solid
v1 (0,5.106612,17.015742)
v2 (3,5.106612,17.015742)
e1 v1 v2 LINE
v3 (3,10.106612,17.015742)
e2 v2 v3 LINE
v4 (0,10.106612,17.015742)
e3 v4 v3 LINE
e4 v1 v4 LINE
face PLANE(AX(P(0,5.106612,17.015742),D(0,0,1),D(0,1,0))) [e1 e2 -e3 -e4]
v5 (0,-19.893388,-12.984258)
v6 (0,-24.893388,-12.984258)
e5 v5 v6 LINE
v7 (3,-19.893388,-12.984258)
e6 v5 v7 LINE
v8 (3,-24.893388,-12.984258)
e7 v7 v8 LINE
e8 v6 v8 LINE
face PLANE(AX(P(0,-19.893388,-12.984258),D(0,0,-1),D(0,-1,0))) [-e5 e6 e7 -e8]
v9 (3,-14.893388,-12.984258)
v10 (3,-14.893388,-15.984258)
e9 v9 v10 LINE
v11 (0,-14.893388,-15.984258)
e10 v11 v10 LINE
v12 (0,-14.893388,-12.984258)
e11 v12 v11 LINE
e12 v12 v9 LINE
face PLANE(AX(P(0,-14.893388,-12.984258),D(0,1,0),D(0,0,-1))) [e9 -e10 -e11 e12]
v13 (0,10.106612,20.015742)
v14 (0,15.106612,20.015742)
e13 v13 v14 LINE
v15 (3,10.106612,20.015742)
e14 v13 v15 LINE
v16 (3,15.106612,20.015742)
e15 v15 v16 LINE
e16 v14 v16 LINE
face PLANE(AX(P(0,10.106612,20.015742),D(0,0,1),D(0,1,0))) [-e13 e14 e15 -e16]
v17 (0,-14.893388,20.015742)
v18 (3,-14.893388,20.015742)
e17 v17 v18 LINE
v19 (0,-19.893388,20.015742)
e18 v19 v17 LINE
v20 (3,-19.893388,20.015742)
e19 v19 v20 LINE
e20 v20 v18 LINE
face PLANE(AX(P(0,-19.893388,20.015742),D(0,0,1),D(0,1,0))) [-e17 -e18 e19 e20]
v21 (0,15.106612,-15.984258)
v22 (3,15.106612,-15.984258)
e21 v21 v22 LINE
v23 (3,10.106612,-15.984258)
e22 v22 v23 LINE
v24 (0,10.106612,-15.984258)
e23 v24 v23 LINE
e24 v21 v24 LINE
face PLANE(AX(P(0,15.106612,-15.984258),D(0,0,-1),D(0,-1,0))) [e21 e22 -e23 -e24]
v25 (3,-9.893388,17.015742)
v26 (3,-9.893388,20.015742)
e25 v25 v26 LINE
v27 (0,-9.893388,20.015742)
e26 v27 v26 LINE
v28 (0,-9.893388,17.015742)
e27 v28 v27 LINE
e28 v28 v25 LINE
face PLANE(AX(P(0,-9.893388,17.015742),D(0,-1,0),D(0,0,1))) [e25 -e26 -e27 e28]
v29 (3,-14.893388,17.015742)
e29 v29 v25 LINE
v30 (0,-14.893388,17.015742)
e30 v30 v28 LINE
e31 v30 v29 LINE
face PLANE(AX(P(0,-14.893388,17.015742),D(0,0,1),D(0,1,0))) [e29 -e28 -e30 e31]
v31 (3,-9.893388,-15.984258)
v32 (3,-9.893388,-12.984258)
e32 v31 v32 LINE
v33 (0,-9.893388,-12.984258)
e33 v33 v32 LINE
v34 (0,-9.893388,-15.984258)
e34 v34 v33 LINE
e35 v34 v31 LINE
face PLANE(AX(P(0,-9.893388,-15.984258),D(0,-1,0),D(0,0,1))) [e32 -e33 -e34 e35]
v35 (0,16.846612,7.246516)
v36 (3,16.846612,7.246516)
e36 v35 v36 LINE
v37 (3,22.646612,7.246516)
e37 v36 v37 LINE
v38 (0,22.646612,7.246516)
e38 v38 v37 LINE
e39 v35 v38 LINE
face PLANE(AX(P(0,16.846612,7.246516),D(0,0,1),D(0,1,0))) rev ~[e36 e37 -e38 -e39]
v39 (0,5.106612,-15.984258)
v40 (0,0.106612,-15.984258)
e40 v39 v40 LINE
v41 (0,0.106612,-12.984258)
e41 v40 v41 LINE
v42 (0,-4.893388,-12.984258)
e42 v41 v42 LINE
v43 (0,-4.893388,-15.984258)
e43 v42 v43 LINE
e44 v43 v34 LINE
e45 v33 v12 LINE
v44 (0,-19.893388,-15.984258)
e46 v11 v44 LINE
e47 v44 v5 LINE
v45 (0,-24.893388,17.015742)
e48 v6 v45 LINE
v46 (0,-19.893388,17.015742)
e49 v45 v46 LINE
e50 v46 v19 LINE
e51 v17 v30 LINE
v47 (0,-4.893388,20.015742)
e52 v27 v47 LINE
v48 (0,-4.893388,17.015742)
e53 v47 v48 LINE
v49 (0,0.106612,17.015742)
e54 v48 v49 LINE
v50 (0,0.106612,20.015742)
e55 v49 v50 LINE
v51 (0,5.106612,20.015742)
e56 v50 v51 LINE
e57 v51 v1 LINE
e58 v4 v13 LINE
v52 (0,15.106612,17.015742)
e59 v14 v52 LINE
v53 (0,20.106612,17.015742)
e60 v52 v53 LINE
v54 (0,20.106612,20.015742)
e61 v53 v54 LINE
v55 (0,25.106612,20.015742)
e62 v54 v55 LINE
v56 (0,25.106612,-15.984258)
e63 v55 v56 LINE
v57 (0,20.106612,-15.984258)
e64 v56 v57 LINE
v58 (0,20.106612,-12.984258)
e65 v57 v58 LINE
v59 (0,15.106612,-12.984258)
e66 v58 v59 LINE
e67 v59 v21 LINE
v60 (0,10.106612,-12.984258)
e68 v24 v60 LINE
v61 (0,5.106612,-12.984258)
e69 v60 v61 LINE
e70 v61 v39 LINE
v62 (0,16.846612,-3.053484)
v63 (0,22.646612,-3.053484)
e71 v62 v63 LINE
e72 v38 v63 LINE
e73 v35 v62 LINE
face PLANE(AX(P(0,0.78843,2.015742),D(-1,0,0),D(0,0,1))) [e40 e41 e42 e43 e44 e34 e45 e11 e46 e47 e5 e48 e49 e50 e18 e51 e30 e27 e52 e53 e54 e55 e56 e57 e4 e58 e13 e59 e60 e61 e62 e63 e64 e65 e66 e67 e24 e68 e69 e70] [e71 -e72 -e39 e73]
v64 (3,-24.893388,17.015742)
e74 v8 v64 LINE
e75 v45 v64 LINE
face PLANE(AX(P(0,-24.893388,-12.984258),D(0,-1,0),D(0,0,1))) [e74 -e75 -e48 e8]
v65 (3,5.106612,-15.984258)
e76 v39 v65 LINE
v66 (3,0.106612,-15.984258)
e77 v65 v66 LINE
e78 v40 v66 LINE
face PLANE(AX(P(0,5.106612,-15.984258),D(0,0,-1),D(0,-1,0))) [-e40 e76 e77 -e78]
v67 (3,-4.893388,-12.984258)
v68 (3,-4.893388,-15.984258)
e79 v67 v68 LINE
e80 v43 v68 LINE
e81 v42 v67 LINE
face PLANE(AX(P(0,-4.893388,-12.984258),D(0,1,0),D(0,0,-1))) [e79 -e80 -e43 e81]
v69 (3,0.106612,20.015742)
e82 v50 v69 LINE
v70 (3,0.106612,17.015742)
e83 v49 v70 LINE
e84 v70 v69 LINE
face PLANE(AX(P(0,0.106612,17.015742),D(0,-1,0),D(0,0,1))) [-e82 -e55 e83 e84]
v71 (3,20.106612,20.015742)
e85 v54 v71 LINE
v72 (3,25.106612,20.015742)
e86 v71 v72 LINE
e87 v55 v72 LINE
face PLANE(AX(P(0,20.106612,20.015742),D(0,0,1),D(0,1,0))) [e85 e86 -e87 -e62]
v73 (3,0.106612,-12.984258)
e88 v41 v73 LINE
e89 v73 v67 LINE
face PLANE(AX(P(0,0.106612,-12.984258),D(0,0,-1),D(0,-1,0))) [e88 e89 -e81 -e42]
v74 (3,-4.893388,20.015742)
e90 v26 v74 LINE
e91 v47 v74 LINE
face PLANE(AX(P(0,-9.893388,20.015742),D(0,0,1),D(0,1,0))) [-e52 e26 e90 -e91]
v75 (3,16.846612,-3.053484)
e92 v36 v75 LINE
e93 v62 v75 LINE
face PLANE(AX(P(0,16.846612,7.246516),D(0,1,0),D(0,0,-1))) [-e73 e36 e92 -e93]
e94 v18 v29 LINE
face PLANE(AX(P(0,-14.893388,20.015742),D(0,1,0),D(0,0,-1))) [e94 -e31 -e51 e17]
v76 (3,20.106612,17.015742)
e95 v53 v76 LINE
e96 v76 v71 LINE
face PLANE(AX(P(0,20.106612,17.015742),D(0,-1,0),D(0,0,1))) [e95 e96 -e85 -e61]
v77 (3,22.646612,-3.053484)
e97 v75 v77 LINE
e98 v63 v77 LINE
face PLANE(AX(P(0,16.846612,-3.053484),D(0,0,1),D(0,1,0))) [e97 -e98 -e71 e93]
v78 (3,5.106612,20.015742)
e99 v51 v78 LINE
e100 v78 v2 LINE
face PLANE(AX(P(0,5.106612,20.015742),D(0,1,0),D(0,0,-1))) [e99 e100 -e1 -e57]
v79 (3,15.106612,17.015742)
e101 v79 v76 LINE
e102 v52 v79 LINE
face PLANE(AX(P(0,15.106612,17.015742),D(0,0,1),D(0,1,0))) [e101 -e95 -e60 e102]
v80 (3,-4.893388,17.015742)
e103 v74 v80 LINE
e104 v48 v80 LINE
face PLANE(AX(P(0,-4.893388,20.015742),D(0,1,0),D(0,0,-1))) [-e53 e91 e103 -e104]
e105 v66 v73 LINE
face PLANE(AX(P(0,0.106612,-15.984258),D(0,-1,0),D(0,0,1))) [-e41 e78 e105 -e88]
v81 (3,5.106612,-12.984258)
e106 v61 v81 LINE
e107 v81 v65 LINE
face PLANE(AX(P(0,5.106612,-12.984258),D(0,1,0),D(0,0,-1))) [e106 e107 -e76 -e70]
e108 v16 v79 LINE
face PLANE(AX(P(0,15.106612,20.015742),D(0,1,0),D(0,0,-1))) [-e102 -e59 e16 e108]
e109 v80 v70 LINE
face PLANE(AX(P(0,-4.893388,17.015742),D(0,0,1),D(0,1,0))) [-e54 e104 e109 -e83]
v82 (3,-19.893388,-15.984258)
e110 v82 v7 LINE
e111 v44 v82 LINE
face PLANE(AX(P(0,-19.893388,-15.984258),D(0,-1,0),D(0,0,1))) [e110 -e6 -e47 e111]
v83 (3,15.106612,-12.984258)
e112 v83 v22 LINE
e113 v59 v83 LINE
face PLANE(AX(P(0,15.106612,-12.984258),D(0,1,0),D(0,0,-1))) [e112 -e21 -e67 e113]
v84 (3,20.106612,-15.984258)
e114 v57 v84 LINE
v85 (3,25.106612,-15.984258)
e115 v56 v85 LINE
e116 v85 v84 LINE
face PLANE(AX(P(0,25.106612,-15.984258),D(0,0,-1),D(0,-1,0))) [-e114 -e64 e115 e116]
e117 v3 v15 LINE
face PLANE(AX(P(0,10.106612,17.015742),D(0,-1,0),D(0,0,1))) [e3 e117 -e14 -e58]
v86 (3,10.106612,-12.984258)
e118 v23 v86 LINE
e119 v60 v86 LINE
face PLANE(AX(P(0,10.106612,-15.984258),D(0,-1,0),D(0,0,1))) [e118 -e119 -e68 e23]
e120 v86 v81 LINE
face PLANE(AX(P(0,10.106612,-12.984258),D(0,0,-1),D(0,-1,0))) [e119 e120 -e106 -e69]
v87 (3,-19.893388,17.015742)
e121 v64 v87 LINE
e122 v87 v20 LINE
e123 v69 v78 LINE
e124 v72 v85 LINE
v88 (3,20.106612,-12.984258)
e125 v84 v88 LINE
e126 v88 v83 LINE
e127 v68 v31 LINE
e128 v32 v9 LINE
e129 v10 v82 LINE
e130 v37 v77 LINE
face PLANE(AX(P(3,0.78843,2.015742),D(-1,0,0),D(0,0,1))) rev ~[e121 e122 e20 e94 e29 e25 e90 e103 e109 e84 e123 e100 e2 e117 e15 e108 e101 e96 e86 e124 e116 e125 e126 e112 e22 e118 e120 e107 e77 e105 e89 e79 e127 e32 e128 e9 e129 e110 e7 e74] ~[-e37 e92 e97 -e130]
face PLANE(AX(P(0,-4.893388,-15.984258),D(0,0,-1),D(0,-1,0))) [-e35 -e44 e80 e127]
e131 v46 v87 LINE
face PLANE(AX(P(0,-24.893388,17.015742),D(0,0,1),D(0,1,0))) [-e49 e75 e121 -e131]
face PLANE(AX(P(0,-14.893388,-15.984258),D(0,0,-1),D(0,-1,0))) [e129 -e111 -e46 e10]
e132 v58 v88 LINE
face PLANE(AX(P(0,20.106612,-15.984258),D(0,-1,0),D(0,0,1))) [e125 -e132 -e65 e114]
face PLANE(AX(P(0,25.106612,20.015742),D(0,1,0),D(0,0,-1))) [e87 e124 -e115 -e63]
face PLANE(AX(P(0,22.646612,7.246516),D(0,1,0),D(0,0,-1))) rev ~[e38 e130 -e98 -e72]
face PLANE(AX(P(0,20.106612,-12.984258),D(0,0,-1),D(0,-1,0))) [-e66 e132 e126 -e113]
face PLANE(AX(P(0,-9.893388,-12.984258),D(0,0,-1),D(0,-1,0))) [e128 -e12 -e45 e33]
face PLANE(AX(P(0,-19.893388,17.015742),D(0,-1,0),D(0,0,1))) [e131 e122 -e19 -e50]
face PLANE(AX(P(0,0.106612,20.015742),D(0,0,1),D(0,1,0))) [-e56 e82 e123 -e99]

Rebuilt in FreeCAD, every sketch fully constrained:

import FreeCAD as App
import Part
import Sketcher
from FreeCAD import Vector


def add_polygon(sketch, points):
    """Adds a closed chain of lines whose ends are joined by coincident constraints."""
    first, n = sketch.GeometryCount, len(points)
    for a, b in zip(points, points[1:] + points[:1]):
        sketch.addGeometry(Part.LineSegment(App.Vector(*a, 0), App.Vector(*b, 0)), False)
    for i in range(n):
        sketch.addConstraint(Sketcher.Constraint("Coincident", first + i, 2, first + (i + 1) % n, 1))

doc = App.newDocument("Part")
body = doc.addObject("PartDesign::Body", "Body")

# Sketch on YZ plane
sketch1 = body.newObject("Sketcher::SketchObject", "Sketch")
sketch1.AttachmentSupport = (doc.getObject("YZ_Plane"), [""])
sketch1.MapMode = "FlatFace"
add_polygon(sketch1, [(20.106612, -15.984258), (25.106612, -15.984258), (25.106612, 20.015742), (20.106612, 20.015742), (20.106612, 17.015742), (15.106612, 17.015742), (15.106612, 20.015742), (10.106612, 20.015742), (10.106612, 17.015742), (5.106612, 17.015742), (5.106612, 20.015742), (0.106612, 20.015742), (0.106612, 17.015742), (-4.893388, 17.015742), (-4.893388, 20.015742), (-9.893388, 20.015742), (-9.893388, 17.015742), (-14.893388, 17.015742), (-14.893388, 20.015742), (-19.893388, 20.015742), (-19.893388, 17.015742), (-24.893388, 17.015742), (-24.893388, -12.984258), (-19.893388, -12.984258), (-19.893388, -15.984258), (-14.893388, -15.984258), (-14.893388, -12.984258), (-9.893388, -12.984258), (-9.893388, -15.984258), (-4.893388, -15.984258), (-4.893388, -12.984258), (0.106612, -12.984258), (0.106612, -15.984258), (5.106612, -15.984258), (5.106612, -12.984258), (10.106612, -12.984258), (10.106612, -15.984258), (15.106612, -15.984258), (15.106612, -12.984258), (20.106612, -12.984258)])  # lines 0-39
add_polygon(sketch1, [(16.846612, 7.246516), (22.646612, 7.246516), (22.646612, -3.053484), (16.846612, -3.053484)])  # lines 40-43
sketch1.addConstraint([
    Sketcher.Constraint("Horizontal", 0),
    Sketcher.Constraint("Vertical", 1),
    Sketcher.Constraint("Horizontal", 2),
    Sketcher.Constraint("Vertical", 3),
    Sketcher.Constraint("Horizontal", 4),
    Sketcher.Constraint("Vertical", 5),
    Sketcher.Constraint("Horizontal", 6),
    Sketcher.Constraint("Vertical", 7),
    Sketcher.Constraint("Horizontal", 8),
    Sketcher.Constraint("Vertical", 9),
    Sketcher.Constraint("Horizontal", 10),
    Sketcher.Constraint("Vertical", 11),
    Sketcher.Constraint("Horizontal", 12),
    Sketcher.Constraint("Vertical", 13),
    Sketcher.Constraint("Horizontal", 14),
    Sketcher.Constraint("Vertical", 15),
    Sketcher.Constraint("Horizontal", 16),
    Sketcher.Constraint("Vertical", 17),
    Sketcher.Constraint("Horizontal", 18),
    Sketcher.Constraint("Vertical", 19),
    Sketcher.Constraint("Horizontal", 20),
    Sketcher.Constraint("Vertical", 21),
    Sketcher.Constraint("Horizontal", 22),
    Sketcher.Constraint("Vertical", 23),
    Sketcher.Constraint("Horizontal", 24),
    Sketcher.Constraint("Vertical", 25),
    Sketcher.Constraint("Horizontal", 26),
    Sketcher.Constraint("Vertical", 27),
    Sketcher.Constraint("Horizontal", 28),
    Sketcher.Constraint("Vertical", 29),
    Sketcher.Constraint("Horizontal", 30),
    Sketcher.Constraint("Vertical", 31),
    Sketcher.Constraint("Horizontal", 32),
    Sketcher.Constraint("Vertical", 33),
    Sketcher.Constraint("Horizontal", 34),
    Sketcher.Constraint("Vertical", 35),
    Sketcher.Constraint("Horizontal", 36),
    Sketcher.Constraint("Vertical", 37),
    Sketcher.Constraint("Horizontal", 38),
    Sketcher.Constraint("Vertical", 39),
    Sketcher.Constraint("Horizontal", 40),
    Sketcher.Constraint("Vertical", 41),
    Sketcher.Constraint("Horizontal", 42),
    Sketcher.Constraint("Vertical", 43),
    Sketcher.Constraint("Horizontal", 2, 2, 5, 2),
    Sketcher.Constraint("Horizontal", 4, 2, 7, 2),
    Sketcher.Constraint("Horizontal", 6, 2, 9, 2),
    Sketcher.Constraint("Horizontal", 8, 2, 11, 2),
    Sketcher.Constraint("Horizontal", 10, 2, 13, 2),
    Sketcher.Constraint("Horizontal", 12, 2, 15, 2),
    Sketcher.Constraint("Horizontal", 14, 2, 17, 2),
    Sketcher.Constraint("Horizontal", 16, 2, 19, 2),
    Sketcher.Constraint("Horizontal", 0, 2, 23, 2),
    Sketcher.Constraint("Horizontal", 22, 2, 25, 2),
    Sketcher.Constraint("Horizontal", 24, 2, 27, 2),
    Sketcher.Constraint("Horizontal", 26, 2, 29, 2),
    Sketcher.Constraint("Horizontal", 28, 2, 31, 2),
    Sketcher.Constraint("Horizontal", 30, 2, 33, 2),
    Sketcher.Constraint("Horizontal", 32, 2, 35, 2),
    Sketcher.Constraint("Horizontal", 34, 2, 37, 2),
    Sketcher.Constraint("Vertical", 19, 2, 22, 2),
    Sketcher.Constraint("Vertical", 17, 2, 24, 2),
    Sketcher.Constraint("Vertical", 15, 2, 26, 2),
    Sketcher.Constraint("Vertical", 13, 2, 28, 2),
    Sketcher.Constraint("Vertical", 11, 2, 30, 2),
    Sketcher.Constraint("Vertical", 9, 2, 32, 2),
    Sketcher.Constraint("Vertical", 7, 2, 34, 2),
    Sketcher.Constraint("Vertical", 5, 2, 36, 2),
    Sketcher.Constraint("Vertical", 3, 2, 38, 2),
    Sketcher.Constraint("Equal", 2, 4),
    Sketcher.Constraint("Equal", 4, 6),
    Sketcher.Constraint("Equal", 6, 8),
    Sketcher.Constraint("Equal", 8, 10),
    Sketcher.Constraint("Equal", 10, 12),
    Sketcher.Constraint("Equal", 12, 14),
    Sketcher.Constraint("Equal", 14, 16),
    Sketcher.Constraint("Equal", 16, 18),
    Sketcher.Constraint("Equal", 18, 20),
    Sketcher.Constraint("Equal", 19, 23),
    Sketcher.Constraint("DistanceX", 0, 1, 0, 2, 5.0),
    Sketcher.Constraint("DistanceY", 1, 1, 1, 2, 36.0),
    Sketcher.Constraint("DistanceY", 3, 2, 3, 1, 3.0),
    Sketcher.Constraint("DistanceX", 40, 1, 40, 2, 5.8),
    Sketcher.Constraint("DistanceY", 41, 2, 41, 1, 10.3),
    Sketcher.Constraint("DistanceX", 3, 2, 40, 2, 2.54),
    Sketcher.Constraint("DistanceY", 0, 2, -1, 1, 15.984258),
    Sketcher.Constraint("DistanceX", -1, 1, 0, 2, 25.106612),
    Sketcher.Constraint("DistanceY", -1, 1, 40, 2, 7.246516),
])
pad1 = body.newObject("PartDesign::Pad", "Pad")
pad1.Profile = sketch1
pad1.Length = 3

doc.recompute()
